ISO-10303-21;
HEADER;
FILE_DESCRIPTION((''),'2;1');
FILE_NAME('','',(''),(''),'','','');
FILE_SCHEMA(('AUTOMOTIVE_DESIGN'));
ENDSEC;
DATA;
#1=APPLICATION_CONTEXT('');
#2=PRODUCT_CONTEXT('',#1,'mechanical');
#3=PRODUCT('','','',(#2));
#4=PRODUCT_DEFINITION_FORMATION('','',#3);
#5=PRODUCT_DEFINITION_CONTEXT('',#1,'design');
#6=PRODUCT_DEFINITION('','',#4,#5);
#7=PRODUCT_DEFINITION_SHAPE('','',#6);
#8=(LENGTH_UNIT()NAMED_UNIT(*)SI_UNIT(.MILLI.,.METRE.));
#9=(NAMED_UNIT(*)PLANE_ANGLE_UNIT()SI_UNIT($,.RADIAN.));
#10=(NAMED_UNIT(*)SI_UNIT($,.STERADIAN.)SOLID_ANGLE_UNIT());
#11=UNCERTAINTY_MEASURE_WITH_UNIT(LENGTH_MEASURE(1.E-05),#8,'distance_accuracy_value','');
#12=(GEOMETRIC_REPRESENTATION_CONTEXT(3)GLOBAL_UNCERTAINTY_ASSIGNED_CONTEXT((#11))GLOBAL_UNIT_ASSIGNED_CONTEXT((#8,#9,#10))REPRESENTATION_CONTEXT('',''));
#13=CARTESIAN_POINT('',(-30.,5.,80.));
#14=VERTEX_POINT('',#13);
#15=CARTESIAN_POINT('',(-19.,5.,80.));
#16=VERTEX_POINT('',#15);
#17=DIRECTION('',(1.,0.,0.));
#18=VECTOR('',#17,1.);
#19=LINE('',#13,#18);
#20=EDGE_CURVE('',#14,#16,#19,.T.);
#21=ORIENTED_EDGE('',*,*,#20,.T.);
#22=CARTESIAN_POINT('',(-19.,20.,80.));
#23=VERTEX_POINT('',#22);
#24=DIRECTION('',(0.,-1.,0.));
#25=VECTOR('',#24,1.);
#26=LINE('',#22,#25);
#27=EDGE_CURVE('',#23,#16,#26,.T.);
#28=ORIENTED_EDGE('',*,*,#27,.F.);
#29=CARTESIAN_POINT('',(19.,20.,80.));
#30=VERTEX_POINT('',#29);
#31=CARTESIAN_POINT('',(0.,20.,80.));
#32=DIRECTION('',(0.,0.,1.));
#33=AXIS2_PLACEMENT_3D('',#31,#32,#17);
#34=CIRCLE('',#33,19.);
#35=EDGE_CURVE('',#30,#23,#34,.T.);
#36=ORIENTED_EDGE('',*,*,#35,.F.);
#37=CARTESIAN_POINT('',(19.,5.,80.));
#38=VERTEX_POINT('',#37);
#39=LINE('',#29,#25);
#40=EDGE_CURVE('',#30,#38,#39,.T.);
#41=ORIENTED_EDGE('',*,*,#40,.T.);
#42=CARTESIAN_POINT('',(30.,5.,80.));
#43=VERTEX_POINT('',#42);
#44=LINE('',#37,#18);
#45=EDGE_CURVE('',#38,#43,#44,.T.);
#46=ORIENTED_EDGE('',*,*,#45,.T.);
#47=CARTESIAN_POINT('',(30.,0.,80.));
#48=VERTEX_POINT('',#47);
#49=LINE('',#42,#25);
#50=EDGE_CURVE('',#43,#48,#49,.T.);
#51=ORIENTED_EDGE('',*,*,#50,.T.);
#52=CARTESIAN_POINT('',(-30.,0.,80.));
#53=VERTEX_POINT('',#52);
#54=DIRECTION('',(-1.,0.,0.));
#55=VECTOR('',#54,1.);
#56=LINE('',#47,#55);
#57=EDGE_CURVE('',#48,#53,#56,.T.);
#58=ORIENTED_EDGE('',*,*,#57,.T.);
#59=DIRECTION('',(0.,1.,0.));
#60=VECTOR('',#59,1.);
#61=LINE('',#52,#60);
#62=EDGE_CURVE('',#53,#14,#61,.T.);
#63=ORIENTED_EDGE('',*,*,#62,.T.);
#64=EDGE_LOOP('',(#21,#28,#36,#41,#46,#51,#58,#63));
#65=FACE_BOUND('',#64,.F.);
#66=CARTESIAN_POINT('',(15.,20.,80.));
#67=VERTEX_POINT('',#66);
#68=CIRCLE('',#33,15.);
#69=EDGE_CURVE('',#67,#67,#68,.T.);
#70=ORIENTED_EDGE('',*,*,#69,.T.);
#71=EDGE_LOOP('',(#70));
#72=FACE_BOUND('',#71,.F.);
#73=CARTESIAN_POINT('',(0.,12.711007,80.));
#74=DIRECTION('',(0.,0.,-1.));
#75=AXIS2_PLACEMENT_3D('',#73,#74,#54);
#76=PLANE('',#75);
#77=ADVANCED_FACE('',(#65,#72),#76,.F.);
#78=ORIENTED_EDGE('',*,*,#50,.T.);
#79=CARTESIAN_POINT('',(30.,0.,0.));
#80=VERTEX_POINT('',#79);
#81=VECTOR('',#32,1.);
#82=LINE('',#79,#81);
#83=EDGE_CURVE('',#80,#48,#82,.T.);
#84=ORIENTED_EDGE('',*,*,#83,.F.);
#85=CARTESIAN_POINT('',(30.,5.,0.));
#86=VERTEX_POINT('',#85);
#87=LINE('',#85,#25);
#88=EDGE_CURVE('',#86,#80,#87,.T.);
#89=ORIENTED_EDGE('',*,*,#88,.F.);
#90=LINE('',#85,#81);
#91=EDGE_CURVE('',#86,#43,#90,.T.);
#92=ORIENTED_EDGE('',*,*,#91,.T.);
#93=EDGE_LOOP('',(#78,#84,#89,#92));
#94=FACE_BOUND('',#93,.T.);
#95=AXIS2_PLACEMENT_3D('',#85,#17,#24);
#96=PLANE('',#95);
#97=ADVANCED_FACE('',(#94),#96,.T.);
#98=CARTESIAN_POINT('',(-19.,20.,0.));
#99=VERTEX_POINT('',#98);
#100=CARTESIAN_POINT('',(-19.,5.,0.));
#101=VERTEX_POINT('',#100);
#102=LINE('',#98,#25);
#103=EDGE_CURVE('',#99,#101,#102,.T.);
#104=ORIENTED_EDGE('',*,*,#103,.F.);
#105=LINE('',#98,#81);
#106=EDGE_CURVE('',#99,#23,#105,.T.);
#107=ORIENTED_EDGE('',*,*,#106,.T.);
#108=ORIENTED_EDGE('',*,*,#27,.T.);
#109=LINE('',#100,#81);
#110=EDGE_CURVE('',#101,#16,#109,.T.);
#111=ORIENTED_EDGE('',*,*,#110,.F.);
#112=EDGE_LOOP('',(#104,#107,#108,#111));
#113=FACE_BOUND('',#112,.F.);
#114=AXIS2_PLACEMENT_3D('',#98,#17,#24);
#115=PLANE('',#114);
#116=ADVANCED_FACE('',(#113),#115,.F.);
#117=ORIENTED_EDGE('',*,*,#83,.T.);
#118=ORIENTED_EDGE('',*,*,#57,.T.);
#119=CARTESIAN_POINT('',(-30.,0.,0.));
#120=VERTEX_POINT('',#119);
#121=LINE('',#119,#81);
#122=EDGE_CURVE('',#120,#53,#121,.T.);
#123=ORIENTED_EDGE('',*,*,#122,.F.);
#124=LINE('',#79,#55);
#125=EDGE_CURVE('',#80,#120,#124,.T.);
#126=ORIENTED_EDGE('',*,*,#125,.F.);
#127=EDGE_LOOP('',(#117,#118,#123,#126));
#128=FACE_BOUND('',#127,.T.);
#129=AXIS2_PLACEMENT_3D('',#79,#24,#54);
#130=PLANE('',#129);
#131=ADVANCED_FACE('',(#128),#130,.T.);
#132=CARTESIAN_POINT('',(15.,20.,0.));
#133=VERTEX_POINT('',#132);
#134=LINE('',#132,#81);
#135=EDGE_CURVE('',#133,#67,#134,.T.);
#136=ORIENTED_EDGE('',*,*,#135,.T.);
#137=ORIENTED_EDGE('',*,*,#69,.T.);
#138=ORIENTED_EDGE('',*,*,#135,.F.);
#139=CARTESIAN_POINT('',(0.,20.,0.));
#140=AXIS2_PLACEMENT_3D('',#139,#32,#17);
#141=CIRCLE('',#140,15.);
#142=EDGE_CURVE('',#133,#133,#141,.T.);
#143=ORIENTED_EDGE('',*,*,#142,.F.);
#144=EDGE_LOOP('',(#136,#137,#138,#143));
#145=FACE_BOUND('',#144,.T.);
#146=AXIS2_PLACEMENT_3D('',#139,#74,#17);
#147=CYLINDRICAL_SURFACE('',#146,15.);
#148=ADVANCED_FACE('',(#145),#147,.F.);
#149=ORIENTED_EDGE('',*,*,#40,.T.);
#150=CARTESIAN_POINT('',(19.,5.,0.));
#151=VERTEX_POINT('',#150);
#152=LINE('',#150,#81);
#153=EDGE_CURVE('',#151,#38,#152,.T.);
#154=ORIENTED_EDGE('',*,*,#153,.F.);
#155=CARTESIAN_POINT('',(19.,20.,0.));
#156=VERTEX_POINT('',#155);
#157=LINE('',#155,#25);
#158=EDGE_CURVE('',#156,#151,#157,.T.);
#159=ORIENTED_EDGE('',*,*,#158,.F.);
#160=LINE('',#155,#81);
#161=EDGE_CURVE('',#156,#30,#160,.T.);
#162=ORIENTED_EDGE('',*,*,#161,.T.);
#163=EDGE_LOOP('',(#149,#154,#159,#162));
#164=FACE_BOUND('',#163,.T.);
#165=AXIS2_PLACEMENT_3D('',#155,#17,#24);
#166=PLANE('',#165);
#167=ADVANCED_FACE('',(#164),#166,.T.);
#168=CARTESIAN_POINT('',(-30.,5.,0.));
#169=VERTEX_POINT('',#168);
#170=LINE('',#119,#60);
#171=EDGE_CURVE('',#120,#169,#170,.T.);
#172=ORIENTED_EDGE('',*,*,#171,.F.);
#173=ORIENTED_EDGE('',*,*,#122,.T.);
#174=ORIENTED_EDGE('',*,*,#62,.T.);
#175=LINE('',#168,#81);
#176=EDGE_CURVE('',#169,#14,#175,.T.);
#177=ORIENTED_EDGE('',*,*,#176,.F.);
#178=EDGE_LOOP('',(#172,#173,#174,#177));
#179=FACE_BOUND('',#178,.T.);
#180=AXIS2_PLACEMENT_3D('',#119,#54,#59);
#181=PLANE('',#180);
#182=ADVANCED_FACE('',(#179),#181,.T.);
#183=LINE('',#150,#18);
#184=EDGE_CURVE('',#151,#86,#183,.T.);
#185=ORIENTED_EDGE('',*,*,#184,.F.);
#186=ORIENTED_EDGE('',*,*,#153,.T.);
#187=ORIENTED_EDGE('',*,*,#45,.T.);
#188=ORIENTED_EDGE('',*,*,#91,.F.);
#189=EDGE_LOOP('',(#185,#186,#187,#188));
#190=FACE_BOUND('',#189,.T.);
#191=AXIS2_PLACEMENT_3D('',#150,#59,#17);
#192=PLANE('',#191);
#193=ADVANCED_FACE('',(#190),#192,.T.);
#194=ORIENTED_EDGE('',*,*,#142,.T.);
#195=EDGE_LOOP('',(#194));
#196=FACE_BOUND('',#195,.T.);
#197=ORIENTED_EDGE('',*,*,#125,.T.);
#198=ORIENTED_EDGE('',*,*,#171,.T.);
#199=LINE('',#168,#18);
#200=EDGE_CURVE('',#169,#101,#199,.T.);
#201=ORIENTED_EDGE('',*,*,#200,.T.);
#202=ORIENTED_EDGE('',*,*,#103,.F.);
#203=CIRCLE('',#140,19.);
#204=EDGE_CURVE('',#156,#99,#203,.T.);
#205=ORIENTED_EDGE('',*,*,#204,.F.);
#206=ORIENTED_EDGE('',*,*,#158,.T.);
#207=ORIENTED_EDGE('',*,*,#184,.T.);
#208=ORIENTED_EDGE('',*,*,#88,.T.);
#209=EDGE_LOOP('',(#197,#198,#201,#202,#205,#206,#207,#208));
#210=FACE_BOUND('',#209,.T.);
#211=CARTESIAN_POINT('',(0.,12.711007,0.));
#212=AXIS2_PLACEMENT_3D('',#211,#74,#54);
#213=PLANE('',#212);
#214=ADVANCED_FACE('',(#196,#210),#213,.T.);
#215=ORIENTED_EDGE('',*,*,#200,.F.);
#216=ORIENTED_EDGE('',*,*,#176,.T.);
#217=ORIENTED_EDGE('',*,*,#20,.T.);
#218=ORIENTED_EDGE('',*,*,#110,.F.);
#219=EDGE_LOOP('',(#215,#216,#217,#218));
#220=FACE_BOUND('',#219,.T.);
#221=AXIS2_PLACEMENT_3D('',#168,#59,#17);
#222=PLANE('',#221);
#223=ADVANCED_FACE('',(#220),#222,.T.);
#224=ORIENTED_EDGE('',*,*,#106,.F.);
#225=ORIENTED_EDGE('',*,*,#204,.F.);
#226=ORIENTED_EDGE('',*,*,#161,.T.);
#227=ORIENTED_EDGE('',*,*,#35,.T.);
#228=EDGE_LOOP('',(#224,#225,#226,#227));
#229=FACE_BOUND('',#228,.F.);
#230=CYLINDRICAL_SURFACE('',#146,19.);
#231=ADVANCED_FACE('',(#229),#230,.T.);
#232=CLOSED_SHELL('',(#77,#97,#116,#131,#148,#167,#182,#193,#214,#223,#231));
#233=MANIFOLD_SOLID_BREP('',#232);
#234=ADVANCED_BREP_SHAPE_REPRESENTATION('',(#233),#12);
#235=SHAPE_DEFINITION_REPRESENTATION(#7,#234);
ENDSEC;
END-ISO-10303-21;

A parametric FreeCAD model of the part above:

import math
import FreeCAD as App
import Part
import Sketcher
from FreeCAD import Vector

doc = App.newDocument("Part")
params = doc.addObject("Spreadsheet::Sheet", "Params")
for row, (alias, value) in enumerate([
    ("sketch1_diameter", "30 mm"),
    ("sketch1_radius", "19 mm"),
    ("sketch1_width", "11 mm"),
    ("sketch1_height", "5 mm"),
    ("sketch1_height2", "15 mm"),
    ("pad1_length", "80 mm"),
], start=1):
    params.set(f"A{row}", alias)
    params.set(f"B{row}", "=" + value)
    params.setAlias(f"B{row}", alias)

body = doc.addObject("PartDesign::Body", "Body")

# Sketch on XY plane
sketch1 = body.newObject("Sketcher::SketchObject", "Sketch")
sketch1.AttachmentSupport = (doc.getObject("XY_Plane"), [""])
sketch1.MapMode = "FlatFace"
sketch1.addGeometry([
    Part.LineSegment(Vector(30, 0, 0), Vector(30, 5, 0)),  # 0
    Part.LineSegment(Vector(30, 5, 0), Vector(19, 5, 0)),  # 1
    Part.LineSegment(Vector(19, 5, 0), Vector(19, 20, 0)),  # 2
    Part.ArcOfCircle(Part.Circle(Vector(0, 20, 0), Vector(0, 0, 1), 19), math.radians(0), math.radians(180)),  # 3
    Part.LineSegment(Vector(-19, 20, 0), Vector(-19, 5, 0)),  # 4
    Part.LineSegment(Vector(-19, 5, 0), Vector(-30, 5, 0)),  # 5
    Part.LineSegment(Vector(-30, 5, 0), Vector(-30, 0, 0)),  # 6
    Part.LineSegment(Vector(-30, 0, 0), Vector(30, 0, 0)),  # 7
    Part.Circle(Vector(0, 20, 0), Vector(0, 0, 1), 15),  # 8
], False)
sketch1.addConstraint([
    Sketcher.Constraint("Coincident", 0, 2, 1, 1),
    Sketcher.Constraint("Coincident", 1, 2, 2, 1),
    Sketcher.Constraint("Tangent", 2, 2, 3, 1),
    Sketcher.Constraint("Tangent", 3, 2, 4, 1),
    Sketcher.Constraint("Coincident", 4, 2, 5, 1),
    Sketcher.Constraint("Coincident", 5, 2, 6, 1),
    Sketcher.Constraint("Coincident", 6, 2, 7, 1),
    Sketcher.Constraint("Coincident", 7, 2, 0, 1),
    Sketcher.Constraint("Vertical", 0),
    Sketcher.Constraint("Horizontal", 1),
    Sketcher.Constraint("Vertical", 2),
    Sketcher.Constraint("Vertical", 4),
    Sketcher.Constraint("Horizontal", 5),
    Sketcher.Constraint("Vertical", 6),
    Sketcher.Constraint("Horizontal", 7),
    Sketcher.Constraint("Coincident", 8, 3, 3, 3),
    Sketcher.Constraint("Symmetric", 6, 2, 7, 2, -1, 1),
    Sketcher.Constraint("Symmetric", 1, 2, 4, 2, -2),
    Sketcher.Constraint("Diameter", 8, 30.0),
    Sketcher.Constraint("Radius", 3, 19.0),
    Sketcher.Constraint("DistanceX", 1, 2, 1, 1, 11.0),
    Sketcher.Constraint("DistanceY", 0, 1, 0, 2, 5.0),
    Sketcher.Constraint("DistanceY", 2, 1, 2, 2, 15.0),
])
sketch1.setExpression("Constraints[18]", "Params.sketch1_diameter")
sketch1.setExpression("Constraints[19]", "Params.sketch1_radius")
sketch1.setExpression("Constraints[20]", "Params.sketch1_width")
sketch1.setExpression("Constraints[21]", "Params.sketch1_height")
sketch1.setExpression("Constraints[22]", "Params.sketch1_height2")
pad1 = body.newObject("PartDesign::Pad", "Pad")
pad1.Profile = sketch1
pad1.setExpression("Length", "Params.pad1_length")

doc.recompute()
